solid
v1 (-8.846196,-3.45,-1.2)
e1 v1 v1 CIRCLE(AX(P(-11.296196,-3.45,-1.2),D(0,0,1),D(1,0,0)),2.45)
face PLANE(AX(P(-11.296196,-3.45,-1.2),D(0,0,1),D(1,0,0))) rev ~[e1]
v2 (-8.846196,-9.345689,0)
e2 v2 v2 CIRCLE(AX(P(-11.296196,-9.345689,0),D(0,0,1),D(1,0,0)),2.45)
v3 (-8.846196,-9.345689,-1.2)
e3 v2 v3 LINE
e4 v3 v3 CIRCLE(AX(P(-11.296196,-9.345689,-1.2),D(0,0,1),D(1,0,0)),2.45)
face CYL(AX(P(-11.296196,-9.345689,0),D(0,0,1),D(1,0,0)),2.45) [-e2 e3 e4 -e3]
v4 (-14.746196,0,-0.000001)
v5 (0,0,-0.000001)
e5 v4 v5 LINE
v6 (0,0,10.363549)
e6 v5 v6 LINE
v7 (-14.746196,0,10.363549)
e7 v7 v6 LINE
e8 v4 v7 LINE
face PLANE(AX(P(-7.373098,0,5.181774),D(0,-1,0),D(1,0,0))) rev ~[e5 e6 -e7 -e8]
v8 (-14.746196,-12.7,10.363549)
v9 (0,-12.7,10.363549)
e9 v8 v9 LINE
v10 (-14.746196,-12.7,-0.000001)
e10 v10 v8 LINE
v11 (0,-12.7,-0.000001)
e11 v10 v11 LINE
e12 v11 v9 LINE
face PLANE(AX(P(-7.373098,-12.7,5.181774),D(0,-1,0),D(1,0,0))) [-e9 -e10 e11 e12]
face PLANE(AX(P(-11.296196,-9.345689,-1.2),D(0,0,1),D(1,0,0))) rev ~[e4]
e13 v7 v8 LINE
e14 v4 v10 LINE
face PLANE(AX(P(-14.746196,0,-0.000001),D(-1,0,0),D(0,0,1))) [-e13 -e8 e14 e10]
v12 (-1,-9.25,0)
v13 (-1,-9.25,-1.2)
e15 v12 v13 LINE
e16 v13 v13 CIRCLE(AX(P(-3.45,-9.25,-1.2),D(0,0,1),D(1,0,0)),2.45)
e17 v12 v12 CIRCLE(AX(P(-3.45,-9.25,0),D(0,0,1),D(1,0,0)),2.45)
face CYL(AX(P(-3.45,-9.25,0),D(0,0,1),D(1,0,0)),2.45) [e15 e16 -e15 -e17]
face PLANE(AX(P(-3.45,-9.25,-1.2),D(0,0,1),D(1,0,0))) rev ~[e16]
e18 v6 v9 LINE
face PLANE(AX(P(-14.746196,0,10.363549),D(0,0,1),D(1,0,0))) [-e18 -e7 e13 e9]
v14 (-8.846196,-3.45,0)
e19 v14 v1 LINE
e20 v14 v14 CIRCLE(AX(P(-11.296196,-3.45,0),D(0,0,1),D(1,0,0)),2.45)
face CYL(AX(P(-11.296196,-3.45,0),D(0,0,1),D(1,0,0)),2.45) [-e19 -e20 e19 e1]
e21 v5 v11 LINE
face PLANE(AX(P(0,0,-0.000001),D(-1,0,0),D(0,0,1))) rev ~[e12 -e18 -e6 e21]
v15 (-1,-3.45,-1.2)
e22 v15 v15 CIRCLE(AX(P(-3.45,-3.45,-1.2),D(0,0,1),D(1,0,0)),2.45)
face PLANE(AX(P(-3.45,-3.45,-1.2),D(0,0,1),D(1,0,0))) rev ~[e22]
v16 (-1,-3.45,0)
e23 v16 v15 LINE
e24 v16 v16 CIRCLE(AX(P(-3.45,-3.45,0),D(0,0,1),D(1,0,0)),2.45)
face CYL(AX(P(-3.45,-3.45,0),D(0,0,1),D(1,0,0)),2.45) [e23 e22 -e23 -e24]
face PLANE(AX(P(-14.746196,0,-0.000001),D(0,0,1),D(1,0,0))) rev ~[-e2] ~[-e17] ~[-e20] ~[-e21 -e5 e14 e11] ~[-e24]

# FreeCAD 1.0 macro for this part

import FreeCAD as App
import Part
import Sketcher

V = App.Vector


def add_polygon(sketch, points):
    """Adds a closed chain of lines whose ends are joined by coincident constraints."""
    first, n = sketch.GeometryCount, len(points)
    for a, b in zip(points, points[1:] + points[:1]):
        sketch.addGeometry(Part.LineSegment(App.Vector(*a, 0), App.Vector(*b, 0)), False)
    for i in range(n):
        sketch.addConstraint(Sketcher.Constraint("Coincident", first + i, 2, first + (i + 1) % n, 1))

doc = App.newDocument("Part")
body = doc.addObject("PartDesign::Body", "Body")

# Sketch on XZ plane
sketch1 = body.newObject("Sketcher::SketchObject", "Sketch")
sketch1.AttachmentSupport = (doc.getObject("XZ_Plane"), [""])
sketch1.MapMode = "FlatFace"
add_polygon(sketch1, [(-15, 10), (-15, 0), (0, 0), (0, 10)])  # lines 0-3
sketch1.addConstraint(Sketcher.Constraint("Vertical", 0))
sketch1.addConstraint(Sketcher.Constraint("Horizontal", 1))
sketch1.addConstraint(Sketcher.Constraint("Vertical", 2))
sketch1.addConstraint(Sketcher.Constraint("Horizontal", 3))
sketch1.addConstraint(Sketcher.Constraint("Coincident", 1, 2, -1, 1))
sketch1.addConstraint(Sketcher.Constraint("DistanceY", 0, 2, 0, 1, 10.363549))
sketch1.addConstraint(Sketcher.Constraint("DistanceX", 1, 1, 1, 2, 14.746196))
pad1 = body.newObject("PartDesign::Pad", "Pad")
pad1.Profile = sketch1
pad1.Length = 12.7

# Sketch on XY plane
sketch2 = body.newObject("Sketcher::SketchObject", "Sketch001")
sketch2.AttachmentSupport = (doc.getObject("XY_Plane"), [""])
sketch2.MapMode = "FlatFace"
sketch2.addGeometry(Part.Circle(V(-3.5, -3.5, 0), V(0, 0, 1), 2.5), False)
sketch2.addGeometry(Part.Circle(V(-11.3, -3.5, 0), V(0, 0, 1), 2.5), False)
sketch2.addGeometry(Part.Circle(V(-11.3, -9.3, 0), V(0, 0, 1), 2.5), False)
sketch2.addGeometry(Part.Circle(V(-3.5, -9.2, 0), V(0, 0, 1), 2.5), False)
sketch2.addConstraint(Sketcher.Constraint("Equal", 0, 1))
sketch2.addConstraint(Sketcher.Constraint("Equal", 1, 2))
sketch2.addConstraint(Sketcher.Constraint("Equal", 2, 3))
sketch2.addConstraint(Sketcher.Constraint("Horizontal", 0, 3, 1, 3))
sketch2.addConstraint(Sketcher.Constraint("Vertical", 1, 3, 2, 3))
sketch2.addConstraint(Sketcher.Constraint("Vertical", 0, 3, 3, 3))
sketch2.addConstraint(Sketcher.Constraint("Diameter", 0, 4.9))
sketch2.addConstraint(Sketcher.Constraint("DistanceY", 3, 3, 0, 3, 5.8))
sketch2.addConstraint(Sketcher.Constraint("DistanceX", 0, 3, -1, 1, 3.45))
sketch2.addConstraint(Sketcher.Constraint("DistanceY", 0, 3, -1, 1, 3.45))
sketch2.addConstraint(Sketcher.Constraint("DistanceY", 2, 3, -1, 1, 9.345689))
sketch2.addConstraint(Sketcher.Constraint("DistanceX", 1, 3, -1, 1, 11.296196))
pad2 = body.newObject("PartDesign::Pad", "Pad001")
pad2.Profile = sketch2
pad2.Length = 1.2
pad2.Reversed = True

doc.recompute()
